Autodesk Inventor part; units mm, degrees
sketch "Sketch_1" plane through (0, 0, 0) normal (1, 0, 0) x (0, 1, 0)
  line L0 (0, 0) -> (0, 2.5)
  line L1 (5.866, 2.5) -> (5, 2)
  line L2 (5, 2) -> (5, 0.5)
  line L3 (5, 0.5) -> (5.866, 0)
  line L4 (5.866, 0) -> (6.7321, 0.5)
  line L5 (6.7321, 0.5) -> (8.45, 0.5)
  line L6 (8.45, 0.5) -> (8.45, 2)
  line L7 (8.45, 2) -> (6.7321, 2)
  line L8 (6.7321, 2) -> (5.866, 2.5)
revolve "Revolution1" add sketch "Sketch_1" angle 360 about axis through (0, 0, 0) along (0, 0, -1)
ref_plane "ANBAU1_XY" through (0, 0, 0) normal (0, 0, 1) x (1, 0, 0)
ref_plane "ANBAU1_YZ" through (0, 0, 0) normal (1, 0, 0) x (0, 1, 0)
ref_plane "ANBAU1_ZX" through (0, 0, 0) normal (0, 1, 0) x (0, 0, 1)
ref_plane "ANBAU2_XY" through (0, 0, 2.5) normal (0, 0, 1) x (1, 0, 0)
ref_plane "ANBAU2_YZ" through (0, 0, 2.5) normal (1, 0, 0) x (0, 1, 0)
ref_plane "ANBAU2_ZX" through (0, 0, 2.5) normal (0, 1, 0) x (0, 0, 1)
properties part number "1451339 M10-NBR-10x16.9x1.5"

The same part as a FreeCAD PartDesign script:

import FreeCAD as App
import Part
import Sketcher
from FreeCAD import Vector
Q = App.Units.Quantity

doc = App.newDocument("Part")
body = doc.addObject("PartDesign::Body", "Body")

sketch1 = doc.addObject("Sketcher::SketchObject", "Sketch")
body.addObject(sketch1)
sketch1.AttachmentSupport = (doc.YZ_Plane, [""])
sketch1.MapMode = "FlatFace"
sketch1.addGeometry([
    Part.LineSegment(Vector(6.7, 2, 0), Vector(5.9, 2.5, 0)),
    Part.LineSegment(Vector(5.9, 2.5, 0), Vector(5, 2, 0)),
    Part.LineSegment(Vector(5, 2, 0), Vector(5, 0.5, 0)),
    Part.LineSegment(Vector(5, 0.5, 0), Vector(5.9, 0, 0)),
    Part.LineSegment(Vector(5.9, 0, 0), Vector(6.7, 0.5, 0)),
    Part.LineSegment(Vector(6.7, 0.5, 0), Vector(8.4, 0.5, 0)),
    Part.LineSegment(Vector(8.4, 0.5, 0), Vector(8.4, 2, 0)),
    Part.LineSegment(Vector(8.4, 2, 0), Vector(6.7, 2, 0)),
], False)
sketch1.addConstraint([
    Sketcher.Constraint("Coincident", 0, 2, 1, 1),
    Sketcher.Constraint("Coincident", 1, 2, 2, 1),
    Sketcher.Constraint("Coincident", 2, 2, 3, 1),
    Sketcher.Constraint("Coincident", 3, 2, 4, 1),
    Sketcher.Constraint("Coincident", 4, 2, 5, 1),
    Sketcher.Constraint("Coincident", 5, 2, 6, 1),
    Sketcher.Constraint("Coincident", 6, 2, 7, 1),
    Sketcher.Constraint("Coincident", 7, 2, 0, 1),
    Sketcher.Constraint("Vertical", 2),
    Sketcher.Constraint("Horizontal", 5),
    Sketcher.Constraint("Vertical", 6),
    Sketcher.Constraint("Horizontal", 7),
    Sketcher.Constraint("PointOnObject", 3, 2, -1),
    Sketcher.Constraint("Parallel", 0, 3),
    Sketcher.Constraint("Parallel", 1, 4),
    Sketcher.Constraint("Horizontal", 2, 2, 4, 2),
    Sketcher.Constraint("Horizontal", 1, 2, 6, 2),
    Sketcher.Constraint("Vertical", 0, 2, 3, 2),
    Sketcher.Constraint("Vertical", 4, 2, 7, 2),
    Sketcher.Constraint("Angle", 1, Q("-149.9993 deg")),
    Sketcher.Constraint("Distance", 0, 1.0),
    Sketcher.Constraint("DistanceY", 2, 2, 2, 1, 1.5),
    Sketcher.Constraint("DistanceX", -1, 1, 1, 2, 5.0),
    Sketcher.Constraint("DistanceX", 5, 1, 5, 2, 1.718),
])
revolution = doc.addObject("PartDesign::Revolution", "Revolution")
body.addObject(revolution)
revolution.Profile = sketch1
revolution.ReferenceAxis = (sketch1, ["V_Axis"])
revolution.Angle = 360

doc.recompute()
